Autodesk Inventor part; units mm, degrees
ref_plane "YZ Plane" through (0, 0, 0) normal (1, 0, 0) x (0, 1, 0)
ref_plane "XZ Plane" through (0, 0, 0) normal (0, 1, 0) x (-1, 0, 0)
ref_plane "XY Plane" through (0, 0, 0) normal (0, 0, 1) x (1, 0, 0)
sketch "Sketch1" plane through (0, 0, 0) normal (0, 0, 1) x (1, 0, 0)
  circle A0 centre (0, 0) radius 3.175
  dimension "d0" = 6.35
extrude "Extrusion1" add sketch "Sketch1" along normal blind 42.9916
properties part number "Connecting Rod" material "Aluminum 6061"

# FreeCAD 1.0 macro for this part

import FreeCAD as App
import Part
import Sketcher
from FreeCAD import Vector
Q = App.Units.Quantity

doc = App.newDocument("Part")
params = doc.addObject("Spreadsheet::Sheet", "Params")
for row, (alias, value) in enumerate([
    ("sketch1_diameter", "0.25 in"),
    ("pad1_length", "42.9916 mm"),
], start=1):
    params.set(f"A{row}", alias)
    params.set(f"B{row}", "=" + value)
    params.setAlias(f"B{row}", alias)

body = doc.addObject("PartDesign::Body", "Body")

sketch1 = body.newObject("Sketcher::SketchObject", "Sketch")
sketch1.AttachmentSupport = (doc.getObject("XY_Plane"), [""])
sketch1.MapMode = "FlatFace"
sketch1.addGeometry(Part.Circle(Vector(0, 0, 0), Vector(0, 0, 1), 3.2), False)
sketch1.addConstraint([
    Sketcher.Constraint("Coincident", 0, 3, -1, 1),
    Sketcher.Constraint("Diameter", 0, Q("0.25 in")),
])
sketch1.setExpression("Constraints[1]", "Params.sketch1_diameter")
pad1 = body.newObject("PartDesign::Pad", "Pad")
pad1.Profile = sketch1
pad1.setExpression("Length", "Params.pad1_length")

doc.recompute()
